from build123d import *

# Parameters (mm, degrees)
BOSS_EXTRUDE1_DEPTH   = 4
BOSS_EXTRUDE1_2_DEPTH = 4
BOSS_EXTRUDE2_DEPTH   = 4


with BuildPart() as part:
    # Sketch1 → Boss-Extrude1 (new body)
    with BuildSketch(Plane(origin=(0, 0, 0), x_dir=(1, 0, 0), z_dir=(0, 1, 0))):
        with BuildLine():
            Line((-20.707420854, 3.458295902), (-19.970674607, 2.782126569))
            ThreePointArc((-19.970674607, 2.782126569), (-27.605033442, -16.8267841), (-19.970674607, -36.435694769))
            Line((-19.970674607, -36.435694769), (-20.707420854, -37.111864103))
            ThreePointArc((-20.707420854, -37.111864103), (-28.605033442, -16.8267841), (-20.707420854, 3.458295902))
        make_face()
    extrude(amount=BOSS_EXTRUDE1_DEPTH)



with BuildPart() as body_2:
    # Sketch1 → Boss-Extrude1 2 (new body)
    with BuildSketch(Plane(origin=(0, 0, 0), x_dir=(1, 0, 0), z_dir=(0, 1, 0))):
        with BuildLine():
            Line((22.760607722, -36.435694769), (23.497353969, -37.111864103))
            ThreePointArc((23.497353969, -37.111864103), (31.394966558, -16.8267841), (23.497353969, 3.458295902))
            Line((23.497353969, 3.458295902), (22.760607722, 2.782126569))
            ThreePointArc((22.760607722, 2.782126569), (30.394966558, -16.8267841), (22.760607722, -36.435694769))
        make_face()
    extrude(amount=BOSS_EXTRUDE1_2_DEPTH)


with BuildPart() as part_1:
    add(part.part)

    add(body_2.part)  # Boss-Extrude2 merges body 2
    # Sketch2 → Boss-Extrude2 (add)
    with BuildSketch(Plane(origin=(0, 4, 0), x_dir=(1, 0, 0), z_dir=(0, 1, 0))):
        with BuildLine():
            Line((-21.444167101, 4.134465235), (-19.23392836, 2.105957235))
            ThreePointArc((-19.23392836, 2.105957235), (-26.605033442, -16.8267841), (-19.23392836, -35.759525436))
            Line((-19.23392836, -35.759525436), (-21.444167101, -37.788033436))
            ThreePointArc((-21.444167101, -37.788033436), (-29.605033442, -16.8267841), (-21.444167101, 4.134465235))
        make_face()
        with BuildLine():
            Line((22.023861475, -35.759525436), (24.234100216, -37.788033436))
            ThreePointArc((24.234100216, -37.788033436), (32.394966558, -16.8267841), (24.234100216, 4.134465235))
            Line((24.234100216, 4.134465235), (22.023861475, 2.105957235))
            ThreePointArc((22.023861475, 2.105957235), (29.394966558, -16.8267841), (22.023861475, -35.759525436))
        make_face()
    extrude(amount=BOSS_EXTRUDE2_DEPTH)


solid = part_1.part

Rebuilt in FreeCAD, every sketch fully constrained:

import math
import FreeCAD as App
import Part
import Sketcher

V = App.Vector
Q = App.Units.Quantity

doc = App.newDocument("Part")
body = doc.addObject("PartDesign::Body", "Body")

# Sketch on XZ plane
sketch1 = body.newObject("Sketcher::SketchObject", "Sketch")
sketch1.AttachmentSupport = (doc.getObject("XZ_Plane"), [""])
sketch1.MapMode = "FlatFace"
sketch1.addGeometry([
    Part.LineSegment(V(-20, -2.8, 0), V(-20.7, -3.5, 0)),
    Part.ArcOfCircle(Part.Circle(V(1.4, 16.8, 0), V(0, 0, 1), 30), math.radians(137), math.radians(223)),
    Part.LineSegment(V(-20.7, 37.1, 0), V(-20, 36.4, 0)),
    Part.ArcOfCircle(Part.Circle(V(1.4, 16.8, 0), V(0, 0, 1), 29), math.radians(137), math.radians(223)),
], False)
sketch1.addConstraint([
    Sketcher.Constraint("Coincident", 0, 2, 1, 2),
    Sketcher.Constraint("Coincident", 1, 1, 2, 1),
    Sketcher.Constraint("Coincident", 2, 2, 3, 1),
    Sketcher.Constraint("Coincident", 3, 2, 0, 1),
    Sketcher.Constraint("Coincident", 3, 3, 1, 3),
    Sketcher.Constraint("Vertical", 0, 2, 1, 1),
    Sketcher.Constraint("Vertical", 2, 2, 3, 2),
    Sketcher.Constraint("Radius", 1, Q("30 mm")),
    Sketcher.Constraint("Radius", 3, Q("29 mm")),
    Sketcher.Constraint("DistanceX", 0, 2, -1, 1, Q("20.707421 mm")),
    Sketcher.Constraint("DistanceY", 0, 2, 1, 3, Q("20.28508 mm")),
    Sketcher.Constraint("DistanceY", 2, 2, 1, 1, Q("0.676169 mm")),
    Sketcher.Constraint("DistanceY", -1, 1, 1, 3, Q("16.826784 mm")),
])
pad1 = body.newObject("PartDesign::Pad", "Pad")
pad1.Profile = sketch1
pad1.Length = 4
pad1.Reversed = True
body2 = doc.addObject("PartDesign::Body", "Body001")

# Sketch on XZ plane
sketch2 = body2.newObject("Sketcher::SketchObject", "Sketch001")
sketch2.AttachmentSupport = (doc.getObject("XZ_Plane001"), [""])
sketch2.MapMode = "FlatFace"
sketch2.addGeometry([
    Part.LineSegment(V(22.8, 36.4, 0), V(23.5, 37.1, 0)),
    Part.ArcOfCircle(Part.Circle(V(1.4, 16.8, 0), V(0, 0, 1), 30), math.radians(-43), math.radians(43)),
    Part.LineSegment(V(23.5, -3.5, 0), V(22.8, -2.8, 0)),
    Part.ArcOfCircle(Part.Circle(V(1.4, 16.8, 0), V(0, 0, 1), 29), math.radians(-43), math.radians(43)),
], False)
sketch2.addConstraint([
    Sketcher.Constraint("Coincident", 0, 2, 1, 2),
    Sketcher.Constraint("Coincident", 1, 1, 2, 1),
    Sketcher.Constraint("Coincident", 2, 2, 3, 1),
    Sketcher.Constraint("Coincident", 3, 2, 0, 1),
    Sketcher.Constraint("Coincident", 3, 3, 1, 3),
    Sketcher.Constraint("Vertical", 0, 2, 1, 1),
    Sketcher.Constraint("Vertical", 2, 2, 3, 2),
    Sketcher.Constraint("Radius", 1, Q("30 mm")),
    Sketcher.Constraint("Radius", 3, Q("29 mm")),
    Sketcher.Constraint("DistanceY", 1, 3, 0, 2, Q("20.28508 mm")),
    Sketcher.Constraint("DistanceY", 1, 1, 2, 2, Q("0.676169 mm")),
    Sketcher.Constraint("DistanceX", -1, 1, 1, 3, Q("1.394967 mm")),
    Sketcher.Constraint("DistanceY", -1, 1, 1, 3, Q("16.826784 mm")),
])
pad2 = body2.newObject("PartDesign::Pad", "Pad001")
pad2.Profile = sketch2
pad2.Length = 4
pad2.Reversed = True
body.AllowCompound = True
doc.recompute()

boolean = body.newObject("PartDesign::Boolean", "Boolean")
boolean.Type = "Fuse"
boolean.addObjects([body2])

# Sketch on XZ plane
sketch3 = body.newObject("Sketcher::SketchObject", "Sketch002")
sketch3.AttachmentSupport = (doc.getObject("XZ_Plane"), [""])
sketch3.MapMode = "FlatFace"
sketch3.AttachmentOffset = App.Placement(V(0, 0, -4), App.Rotation())
sketch3.addGeometry([
    Part.LineSegment(V(-19.2, -2.1, 0), V(-21.4, -4.1, 0)),  # 0
    Part.ArcOfCircle(Part.Circle(V(1.4, 16.8, 0), V(0, 0, 1), 31), math.radians(137), math.radians(223)),  # 1
    Part.LineSegment(V(-21.4, 37.8, 0), V(-19.2, 35.8, 0)),  # 2
    Part.ArcOfCircle(Part.Circle(V(1.4, 16.8, 0), V(0, 0, 1), 28), math.radians(137), math.radians(223)),  # 3
    Part.LineSegment(V(22, 35.8, 0), V(24.2, 37.8, 0)),  # 4
    Part.ArcOfCircle(Part.Circle(V(1.4, 16.8, 0), V(0, 0, 1), 31), math.radians(-43), math.radians(43)),  # 5
    Part.LineSegment(V(24.2, -4.1, 0), V(22, -2.1, 0)),  # 6
    Part.ArcOfCircle(Part.Circle(V(1.4, 16.8, 0), V(0, 0, 1), 28), math.radians(-43), math.radians(43)),  # 7
], False)
sketch3.addConstraint([
    Sketcher.Constraint("Coincident", 0, 2, 1, 2),
    Sketcher.Constraint("Coincident", 1, 1, 2, 1),
    Sketcher.Constraint("Coincident", 2, 2, 3, 1),
    Sketcher.Constraint("Coincident", 3, 2, 0, 1),
    Sketcher.Constraint("Coincident", 4, 2, 5, 2),
    Sketcher.Constraint("Coincident", 5, 1, 6, 1),
    Sketcher.Constraint("Coincident", 6, 2, 7, 1),
    Sketcher.Constraint("Coincident", 7, 2, 4, 1),
    Sketcher.Constraint("Coincident", 3, 3, 1, 3),
    Sketcher.Constraint("Coincident", 5, 3, 1, 3),
    Sketcher.Constraint("Coincident", 7, 3, 1, 3),
    Sketcher.Constraint("Equal", 1, 5),
    Sketcher.Constraint("Equal", 3, 7),
    Sketcher.Constraint("Parallel", 0, 4),
    Sketcher.Constraint("Parallel", 2, 6),
    Sketcher.Constraint("Horizontal", 1, 1, 4, 2),
    Sketcher.Constraint("Horizontal", 0, 2, 5, 1),
    Sketcher.Constraint("Horizontal", 3, 2, 6, 2),
    Sketcher.Constraint("Vertical", 0, 2, 1, 1),
    Sketcher.Constraint("Radius", 1, Q("31 mm")),
    Sketcher.Constraint("Radius", 3, Q("28 mm")),
    Sketcher.Constraint("DistanceX", -1, 1, 4, 2, Q("24.2341 mm")),
    Sketcher.Constraint("DistanceY", 0, 2, 1, 1, Q("41.922499 mm")),
    Sketcher.Constraint("DistanceX", 2, 2, -1, 1, Q("19.233928 mm")),
    Sketcher.Constraint("DistanceY", -1, 1, 1, 3, Q("16.826784 mm")),
])
pad3 = body.newObject("PartDesign::Pad", "Pad002")
pad3.Profile = sketch3
pad3.Length = 4
pad3.Reversed = True

doc.recompute()
